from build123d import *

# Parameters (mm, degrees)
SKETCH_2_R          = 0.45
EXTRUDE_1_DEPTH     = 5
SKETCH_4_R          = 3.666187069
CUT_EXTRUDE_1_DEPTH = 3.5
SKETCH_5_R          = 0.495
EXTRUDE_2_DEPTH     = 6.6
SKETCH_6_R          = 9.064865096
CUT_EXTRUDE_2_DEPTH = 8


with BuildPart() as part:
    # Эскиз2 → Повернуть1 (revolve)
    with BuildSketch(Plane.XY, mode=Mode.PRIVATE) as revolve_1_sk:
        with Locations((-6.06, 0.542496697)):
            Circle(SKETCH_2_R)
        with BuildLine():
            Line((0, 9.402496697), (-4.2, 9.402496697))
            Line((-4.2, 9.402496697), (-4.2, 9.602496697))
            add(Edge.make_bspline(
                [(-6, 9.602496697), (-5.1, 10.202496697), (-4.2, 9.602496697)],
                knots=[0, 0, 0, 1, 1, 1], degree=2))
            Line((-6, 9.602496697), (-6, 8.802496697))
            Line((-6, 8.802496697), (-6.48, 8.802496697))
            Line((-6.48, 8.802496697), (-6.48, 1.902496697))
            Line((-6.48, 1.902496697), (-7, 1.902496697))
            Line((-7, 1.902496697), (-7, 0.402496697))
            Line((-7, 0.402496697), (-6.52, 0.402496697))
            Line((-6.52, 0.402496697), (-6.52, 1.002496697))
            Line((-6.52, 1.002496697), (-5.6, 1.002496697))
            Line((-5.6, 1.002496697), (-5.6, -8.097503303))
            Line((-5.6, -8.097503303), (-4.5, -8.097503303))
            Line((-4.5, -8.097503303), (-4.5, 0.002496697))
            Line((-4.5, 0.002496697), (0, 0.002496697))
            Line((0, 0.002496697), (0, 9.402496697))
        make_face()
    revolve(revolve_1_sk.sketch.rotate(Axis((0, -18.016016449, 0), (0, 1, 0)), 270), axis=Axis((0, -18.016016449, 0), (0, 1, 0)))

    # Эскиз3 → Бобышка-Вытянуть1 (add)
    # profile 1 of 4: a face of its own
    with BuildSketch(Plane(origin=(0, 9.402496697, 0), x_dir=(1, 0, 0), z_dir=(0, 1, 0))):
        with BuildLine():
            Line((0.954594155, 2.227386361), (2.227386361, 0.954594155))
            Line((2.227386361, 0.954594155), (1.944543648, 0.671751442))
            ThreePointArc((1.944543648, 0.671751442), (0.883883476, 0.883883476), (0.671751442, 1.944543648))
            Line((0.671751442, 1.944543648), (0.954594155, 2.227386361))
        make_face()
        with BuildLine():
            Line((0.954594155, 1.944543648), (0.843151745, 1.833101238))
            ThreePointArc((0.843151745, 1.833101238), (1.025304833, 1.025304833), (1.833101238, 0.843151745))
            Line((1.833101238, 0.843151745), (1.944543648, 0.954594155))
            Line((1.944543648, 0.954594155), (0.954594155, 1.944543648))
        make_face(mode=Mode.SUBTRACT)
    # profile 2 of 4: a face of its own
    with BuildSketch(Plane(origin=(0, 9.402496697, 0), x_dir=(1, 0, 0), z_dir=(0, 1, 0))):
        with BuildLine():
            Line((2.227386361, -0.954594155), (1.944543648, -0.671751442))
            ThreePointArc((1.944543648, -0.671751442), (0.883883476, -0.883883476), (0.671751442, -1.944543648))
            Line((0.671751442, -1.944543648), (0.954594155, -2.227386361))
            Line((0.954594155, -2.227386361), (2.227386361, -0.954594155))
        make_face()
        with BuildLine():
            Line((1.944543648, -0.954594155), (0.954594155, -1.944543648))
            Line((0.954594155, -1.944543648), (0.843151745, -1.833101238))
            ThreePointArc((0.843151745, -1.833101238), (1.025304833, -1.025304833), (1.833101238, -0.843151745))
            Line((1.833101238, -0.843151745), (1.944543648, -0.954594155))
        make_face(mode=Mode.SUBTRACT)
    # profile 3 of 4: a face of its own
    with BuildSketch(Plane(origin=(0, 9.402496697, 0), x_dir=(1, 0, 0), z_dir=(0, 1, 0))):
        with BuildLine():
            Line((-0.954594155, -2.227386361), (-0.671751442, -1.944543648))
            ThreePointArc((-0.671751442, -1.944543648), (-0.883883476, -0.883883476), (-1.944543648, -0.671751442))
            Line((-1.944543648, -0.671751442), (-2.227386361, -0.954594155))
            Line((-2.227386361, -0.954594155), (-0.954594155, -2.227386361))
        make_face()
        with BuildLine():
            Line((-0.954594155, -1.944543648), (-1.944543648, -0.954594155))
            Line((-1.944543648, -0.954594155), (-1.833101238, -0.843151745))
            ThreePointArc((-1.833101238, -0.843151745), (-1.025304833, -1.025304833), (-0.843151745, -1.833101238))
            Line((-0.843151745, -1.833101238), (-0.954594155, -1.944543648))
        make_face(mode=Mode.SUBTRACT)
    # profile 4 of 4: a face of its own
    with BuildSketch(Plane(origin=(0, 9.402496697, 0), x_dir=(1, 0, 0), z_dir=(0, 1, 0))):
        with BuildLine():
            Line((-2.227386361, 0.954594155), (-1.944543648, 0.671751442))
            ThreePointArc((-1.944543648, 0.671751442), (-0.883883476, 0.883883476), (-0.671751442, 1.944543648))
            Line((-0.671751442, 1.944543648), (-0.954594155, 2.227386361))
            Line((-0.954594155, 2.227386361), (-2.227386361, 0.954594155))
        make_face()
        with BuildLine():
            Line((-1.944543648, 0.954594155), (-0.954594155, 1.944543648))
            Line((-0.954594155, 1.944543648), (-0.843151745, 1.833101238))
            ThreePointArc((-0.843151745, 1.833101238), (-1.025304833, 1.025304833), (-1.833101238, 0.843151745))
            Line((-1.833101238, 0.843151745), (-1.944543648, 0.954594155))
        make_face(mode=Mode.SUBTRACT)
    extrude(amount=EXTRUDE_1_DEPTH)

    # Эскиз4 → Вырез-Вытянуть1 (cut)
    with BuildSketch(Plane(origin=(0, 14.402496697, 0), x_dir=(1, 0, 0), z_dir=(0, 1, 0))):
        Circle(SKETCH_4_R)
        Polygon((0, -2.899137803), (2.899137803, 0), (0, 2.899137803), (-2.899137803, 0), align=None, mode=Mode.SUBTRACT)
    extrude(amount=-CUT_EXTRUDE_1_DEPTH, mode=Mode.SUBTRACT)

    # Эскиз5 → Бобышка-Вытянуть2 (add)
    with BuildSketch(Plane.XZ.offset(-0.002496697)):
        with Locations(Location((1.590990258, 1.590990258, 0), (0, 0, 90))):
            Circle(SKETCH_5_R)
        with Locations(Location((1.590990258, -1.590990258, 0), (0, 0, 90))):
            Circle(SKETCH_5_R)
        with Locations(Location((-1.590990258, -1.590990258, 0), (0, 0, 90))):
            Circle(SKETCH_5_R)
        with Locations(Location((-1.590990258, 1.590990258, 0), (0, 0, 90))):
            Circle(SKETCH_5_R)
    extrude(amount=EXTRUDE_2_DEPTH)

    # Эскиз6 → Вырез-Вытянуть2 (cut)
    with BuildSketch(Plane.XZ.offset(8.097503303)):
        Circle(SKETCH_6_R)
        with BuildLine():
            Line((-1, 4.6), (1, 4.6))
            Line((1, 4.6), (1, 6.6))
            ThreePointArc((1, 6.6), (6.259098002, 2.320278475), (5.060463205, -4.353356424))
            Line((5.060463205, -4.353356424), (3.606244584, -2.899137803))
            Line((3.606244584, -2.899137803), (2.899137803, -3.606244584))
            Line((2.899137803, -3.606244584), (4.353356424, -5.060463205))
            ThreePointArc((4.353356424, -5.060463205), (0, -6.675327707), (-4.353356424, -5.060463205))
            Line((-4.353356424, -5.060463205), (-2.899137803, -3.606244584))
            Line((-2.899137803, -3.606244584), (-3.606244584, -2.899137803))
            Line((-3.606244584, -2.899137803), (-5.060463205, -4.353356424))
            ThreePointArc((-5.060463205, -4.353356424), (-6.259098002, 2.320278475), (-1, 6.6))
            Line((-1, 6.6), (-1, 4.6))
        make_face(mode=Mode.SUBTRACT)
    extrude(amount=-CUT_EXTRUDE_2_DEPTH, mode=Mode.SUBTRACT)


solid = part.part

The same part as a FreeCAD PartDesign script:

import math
import FreeCAD as App
import Part
import Sketcher

V = App.Vector
Q = App.Units.Quantity

doc = App.newDocument("Part")
body = doc.addObject("PartDesign::Body", "Body")
body.AllowCompound = True

sketch1 = body.newObject("Sketcher::SketchObject", "Sketch")
sketch1.AttachmentSupport = (doc.getObject("XY_Plane"), [""])
sketch1.MapMode = "FlatFace"
sketch1.addGeometry([
    Part.Circle(V(-6.06, 0.542497, 0), V(0, 0, 1), 0.45),
    Part.LineSegment(V(0, 9.402497, 0), V(-4.2, 9.402497, 0)),
    Part.LineSegment(V(-4.2, 9.402497, 0), V(-4.2, 9.602497, 0)),
    Part.BSplineCurve([V(-6, 9.602497, 0), V(-5.1, 10.202497, 0), V(-4.2, 9.602497, 0)], [3, 3], [0, 1], False, 2, [1, 1, 1], False),
    Part.LineSegment(V(-6, 9.602497, 0), V(-6, 8.802497, 0)),
    Part.LineSegment(V(-6, 8.802497, 0), V(-6.48, 8.802497, 0)),
    Part.LineSegment(V(-6.48, 8.802497, 0), V(-6.48, 1.902497, 0)),
    Part.LineSegment(V(-6.48, 1.902497, 0), V(-7, 1.902497, 0)),
    Part.LineSegment(V(-7, 1.902497, 0), V(-7, 0.402497, 0)),
    Part.LineSegment(V(-7, 0.402497, 0), V(-6.52, 0.402497, 0)),
    Part.LineSegment(V(-6.52, 0.402497, 0), V(-6.52, 1.002497, 0)),
    Part.LineSegment(V(-6.52, 1.002497, 0), V(-5.6, 1.002497, 0)),
    Part.LineSegment(V(-5.6, 1.002497, 0), V(-5.6, -8.097503, 0)),
    Part.LineSegment(V(-5.6, -8.097503, 0), V(-4.5, -8.097503, 0)),
    Part.LineSegment(V(-4.5, -8.097503, 0), V(-4.5, 0.002497, 0)),
    Part.LineSegment(V(-4.5, 0.002497, 0), V(0, 0.002497, 0)),
    Part.LineSegment(V(0, 0.002497, 0), V(0, 9.402497, 0)),
], False)
sketch1.addConstraint([
    Sketcher.Constraint("Block", 3),
    Sketcher.Constraint("Coincident", 1, 2, 2, 1),
    Sketcher.Constraint("Coincident", 2, 2, 3, 2),
    Sketcher.Constraint("Coincident", 3, 1, 4, 1),
    Sketcher.Constraint("Coincident", 4, 2, 5, 1),
    Sketcher.Constraint("Coincident", 5, 2, 6, 1),
    Sketcher.Constraint("Coincident", 6, 2, 7, 1),
    Sketcher.Constraint("Coincident", 7, 2, 8, 1),
    Sketcher.Constraint("Coincident", 8, 2, 9, 1),
    Sketcher.Constraint("Coincident", 9, 2, 10, 1),
    Sketcher.Constraint("Coincident", 10, 2, 11, 1),
    Sketcher.Constraint("Coincident", 11, 2, 12, 1),
    Sketcher.Constraint("Coincident", 12, 2, 13, 1),
    Sketcher.Constraint("Coincident", 13, 2, 14, 1),
    Sketcher.Constraint("Coincident", 14, 2, 15, 1),
    Sketcher.Constraint("Coincident", 15, 2, 16, 1),
    Sketcher.Constraint("Coincident", 16, 2, 1, 1),
    Sketcher.Constraint("Horizontal", 1),
    Sketcher.Constraint("Vertical", 2),
    Sketcher.Constraint("Vertical", 4),
    Sketcher.Constraint("Horizontal", 5),
    Sketcher.Constraint("Vertical", 6),
    Sketcher.Constraint("Horizontal", 7),
    Sketcher.Constraint("Vertical", 8),
    Sketcher.Constraint("Horizontal", 9),
    Sketcher.Constraint("Vertical", 10),
    Sketcher.Constraint("Horizontal", 11),
    Sketcher.Constraint("Vertical", 12),
    Sketcher.Constraint("Horizontal", 13),
    Sketcher.Constraint("Vertical", 14),
    Sketcher.Constraint("Horizontal", 15),
    Sketcher.Constraint("Vertical", 16),
    Sketcher.Constraint("PointOnObject", 15, 2, -2),
    Sketcher.Constraint("Equal", 5, 9),
    Sketcher.Constraint("Diameter", 0, Q("0.9 mm")),
    Sketcher.Constraint("DistanceX", 13, 1, 13, 2, Q("1.1 mm")),
    Sketcher.Constraint("DistanceX", 15, 1, 15, 2, Q("4.5 mm")),
    Sketcher.Constraint("DistanceY", 2, 1, 2, 2, Q("0.2 mm")),
    Sketcher.Constraint("DistanceY", 4, 2, 4, 1, Q("0.8 mm")),
    Sketcher.Constraint("DistanceY", 6, 2, 6, 1, Q("6.9 mm")),
    Sketcher.Constraint("DistanceY", 8, 2, 8, 1, Q("1.5 mm")),
    Sketcher.Constraint("DistanceY", 10, 1, 10, 2, Q("0.6 mm")),
    Sketcher.Constraint("DistanceY", 12, 2, 12, 1, Q("9.1 mm")),
    Sketcher.Constraint("DistanceY", 14, 1, 14, 2, Q("8.1 mm")),
    Sketcher.Constraint("DistanceX", 7, 2, -1, 1, Q("7 mm")),
    Sketcher.Constraint("DistanceX", 5, 2, 5, 1, Q("0.48 mm")),
    Sketcher.Constraint("DistanceX", 0, 3, -1, 1, Q("6.06 mm")),
    Sketcher.Constraint("DistanceY", 0, 3, 1, 2, Q("8.86 mm")),
])
revolution = body.newObject("PartDesign::Revolution", "Revolution")
revolution.Profile = sketch1
revolution.ReferenceAxis = (sketch1, ["V_Axis"])
revolution.Angle = 360

sketch2 = body.newObject("Sketcher::SketchObject", "Sketch001")
sketch2.AttachmentSupport = (doc.getObject("XZ_Plane"), [""])
sketch2.MapMode = "FlatFace"
sketch2.AttachmentOffset = App.Placement(V(0, 0, -9.402497), App.Rotation())
sketch2.addGeometry([
    Part.LineSegment(V(2.23, -0.95, 0), V(0.95, -2.23, 0)),
    Part.LineSegment(V(0.95, -2.23, 0), V(0.67, -1.94, 0)),
    Part.ArcOfCircle(Part.Circle(V(1.57, -1.57, 0), V(0, 0, 1), 0.97), math.radians(68), math.radians(202)),
    Part.LineSegment(V(1.94, -0.67, 0), V(2.23, -0.95, 0)),
    Part.LineSegment(V(0.95, -1.94, 0), V(1.94, -0.95, 0)),
    Part.LineSegment(V(1.94, -0.95, 0), V(1.83, -0.84, 0)),
    Part.ArcOfCircle(Part.Circle(V(1.57, -1.57, 0), V(0, 0, 1), 0.78), math.radians(70), math.radians(200)),
    Part.LineSegment(V(0.84, -1.83, 0), V(0.95, -1.94, 0)),
    Part.LineSegment(V(2.23, 0.95, 0), V(1.94, 0.67, 0)),
    Part.ArcOfCircle(Part.Circle(V(1.57, 1.57, 0), V(0, 0, 1), 0.97), math.radians(158), math.radians(292)),
    Part.LineSegment(V(0.67, 1.94, 0), V(0.95, 2.23, 0)),
    Part.LineSegment(V(0.95, 2.23, 0), V(2.23, 0.95, 0)),
    Part.LineSegment(V(1.83, 0.84, 0), V(1.94, 0.95, 0)),
    Part.LineSegment(V(1.94, 0.95, 0), V(0.95, 1.94, 0)),
    Part.LineSegment(V(0.95, 1.94, 0), V(0.84, 1.83, 0)),
    Part.ArcOfCircle(Part.Circle(V(1.57, 1.57, 0), V(0, 0, 1), 0.78), math.radians(160), math.radians(290)),
    Part.LineSegment(V(-0.95, 2.23, 0), V(-0.67, 1.94, 0)),
    Part.ArcOfCircle(Part.Circle(V(-1.57, 1.57, 0), V(0, 0, 1), 0.97), math.radians(-112), math.radians(22)),
    Part.LineSegment(V(-1.94, 0.67, 0), V(-2.23, 0.95, 0)),
    Part.LineSegment(V(-2.23, 0.95, 0), V(-0.95, 2.23, 0)),
    Part.LineSegment(V(-0.84, 1.83, 0), V(-0.95, 1.94, 0)),
    Part.LineSegment(V(-0.95, 1.94, 0), V(-1.94, 0.95, 0)),
    Part.LineSegment(V(-1.94, 0.95, 0), V(-1.83, 0.84, 0)),
    Part.ArcOfCircle(Part.Circle(V(-1.57, 1.57, 0), V(0, 0, 1), 0.78), math.radians(-110), math.radians(20)),
    Part.LineSegment(V(-2.23, -0.95, 0), V(-1.94, -0.67, 0)),
    Part.ArcOfCircle(Part.Circle(V(-1.57, -1.57, 0), V(0, 0, 1), 0.97), math.radians(-22), math.radians(112)),
    Part.LineSegment(V(-0.67, -1.94, 0), V(-0.95, -2.23, 0)),
    Part.LineSegment(V(-0.95, -2.23, 0), V(-2.23, -0.95, 0)),
    Part.LineSegment(V(-1.83, -0.84, 0), V(-1.94, -0.95, 0)),
    Part.LineSegment(V(-1.94, -0.95, 0), V(-0.95, -1.94, 0)),
    Part.LineSegment(V(-0.95, -1.94, 0), V(-0.84, -1.83, 0)),
    Part.ArcOfCircle(Part.Circle(V(-1.57, -1.57, 0), V(0, 0, 1), 0.78), math.radians(-20), math.radians(110)),
], False)
sketch2.addConstraint([
    Sketcher.Constraint("Coincident", 0, 2, 1, 1),
    Sketcher.Constraint("Coincident", 1, 2, 2, 2),
    Sketcher.Constraint("Coincident", 2, 1, 3, 1),
    Sketcher.Constraint("Coincident", 3, 2, 0, 1),
    Sketcher.Constraint("Coincident", 4, 2, 5, 1),
    Sketcher.Constraint("Coincident", 5, 2, 6, 1),
    Sketcher.Constraint("Coincident", 6, 2, 7, 1),
    Sketcher.Constraint("Coincident", 7, 2, 4, 1),
    Sketcher.Constraint("Coincident", 8, 2, 9, 2),
    Sketcher.Constraint("Coincident", 9, 1, 10, 1),
    Sketcher.Constraint("Coincident", 10, 2, 11, 1),
    Sketcher.Constraint("Coincident", 11, 2, 8, 1),
    Sketcher.Constraint("Coincident", 12, 2, 13, 1),
    Sketcher.Constraint("Coincident", 13, 2, 14, 1),
    Sketcher.Constraint("Coincident", 14, 2, 15, 1),
    Sketcher.Constraint("Coincident", 15, 2, 12, 1),
    Sketcher.Constraint("Coincident", 16, 2, 17, 2),
    Sketcher.Constraint("Coincident", 17, 1, 18, 1),
    Sketcher.Constraint("Coincident", 18, 2, 19, 1),
    Sketcher.Constraint("Coincident", 19, 2, 16, 1),
    Sketcher.Constraint("Coincident", 20, 2, 21, 1),
    Sketcher.Constraint("Coincident", 21, 2, 22, 1),
    Sketcher.Constraint("Coincident", 22, 2, 23, 1),
    Sketcher.Constraint("Coincident", 23, 2, 20, 1),
    Sketcher.Constraint("Coincident", 24, 2, 25, 2),
    Sketcher.Constraint("Coincident", 25, 1, 26, 1),
    Sketcher.Constraint("Coincident", 26, 2, 27, 1),
    Sketcher.Constraint("Coincident", 27, 2, 24, 1),
    Sketcher.Constraint("Coincident", 28, 2, 29, 1),
    Sketcher.Constraint("Coincident", 29, 2, 30, 1),
    Sketcher.Constraint("Coincident", 30, 2, 31, 1),
    Sketcher.Constraint("Coincident", 31, 2, 28, 1),
    Sketcher.Constraint("Coincident", 6, 3, 2, 3),
    Sketcher.Constraint("Coincident", 15, 3, 9, 3),
    Sketcher.Constraint("Coincident", 23, 3, 17, 3),
    Sketcher.Constraint("Coincident", 31, 3, 25, 3),
    Sketcher.Constraint("Equal", 2, 9),
    Sketcher.Constraint("Equal", 6, 15),
    Sketcher.Constraint("Equal", 9, 17),
    Sketcher.Constraint("Equal", 15, 23),
    Sketcher.Constraint("Equal", 17, 25),
    Sketcher.Constraint("Equal", 23, 31),
    Sketcher.Constraint("Symmetric", 2, 3, 17, 3, -1, 1),
    Sketcher.Constraint("Symmetric", 9, 3, 25, 3, -1, 1),
    Sketcher.Constraint("Symmetric", 3, 2, 18, 2, -1, 1),
    Sketcher.Constraint("Symmetric", 0, 2, 19, 2, -1, 1),
    Sketcher.Constraint("Symmetric", 7, 2, 20, 2, -1, 1),
    Sketcher.Constraint("Symmetric", 4, 2, 21, 2, -1, 1),
    Sketcher.Constraint("Symmetric", 10, 2, 26, 2, -1, 1),
    Sketcher.Constraint("Symmetric", 11, 2, 27, 2, -1, 1),
    Sketcher.Constraint("Symmetric", 12, 2, 28, 2, -1, 1),
    Sketcher.Constraint("Symmetric", 13, 2, 29, 2, -1, 1),
    Sketcher.Constraint("Symmetric", 9, 3, 17, 3, -2),
    Sketcher.Constraint("Symmetric", 11, 2, 18, 2, -2),
    Sketcher.Constraint("Symmetric", 10, 2, 19, 2, -2),
    Sketcher.Constraint("Symmetric", 13, 2, 20, 2, -2),
    Sketcher.Constraint("Symmetric", 12, 2, 21, 2, -2),
    Sketcher.Constraint("Perpendicular", 0, 1),
    Sketcher.Constraint("Parallel", 1, 3),
    Sketcher.Constraint("Perpendicular", 3, 4),
    Sketcher.Constraint("Perpendicular", 4, 5),
    Sketcher.Constraint("Parallel", 5, 7),
    Sketcher.Constraint("Perpendicular", 7, 8),
    Sketcher.Constraint("Parallel", 8, 10),
    Sketcher.Constraint("Perpendicular", 10, 11),
    Sketcher.Constraint("Perpendicular", 11, 12),
    Sketcher.Constraint("Perpendicular", 13, 14),
    Sketcher.Constraint("Perpendicular", 14, 16),
    Sketcher.Constraint("Parallel", 16, 18),
    Sketcher.Constraint("Perpendicular", 19, 20),
    Sketcher.Constraint("Perpendicular", 21, 22),
    Sketcher.Constraint("Perpendicular", 22, 24),
    Sketcher.Constraint("Parallel", 24, 26),
    Sketcher.Constraint("Perpendicular", 27, 28),
    Sketcher.Constraint("Perpendicular", 29, 30),
    Sketcher.Constraint("Horizontal", 3, 2, 4, 2),
    Sketcher.Constraint("Horizontal", 1, 2, 7, 2),
    Sketcher.Constraint("Vertical", 2, 1, 4, 2),
    Sketcher.Constraint("Vertical", 0, 2, 7, 2),
    Sketcher.Constraint("Radius", 2, Q("0.975 mm")),
    Sketcher.Constraint("Radius", 6, Q("0.775 mm")),
    Sketcher.Constraint("Distance", 0, Q("1.8 mm")),
    Sketcher.Constraint("Distance", 1, Q("0.4 mm")),
    Sketcher.Constraint("DistanceX", -1, 1, 5, 2, Q("1.833101 mm")),
    Sketcher.Constraint("DistanceY", 6, 2, -1, 1, Q("1.833101 mm")),
])
pad1 = body.newObject("PartDesign::Pad", "Pad")
pad1.Profile = sketch2
pad1.Length = 5
pad1.Reversed = True

sketch3 = body.newObject("Sketcher::SketchObject", "Sketch002")
sketch3.AttachmentSupport = (doc.getObject("XZ_Plane"), [""])
sketch3.MapMode = "FlatFace"
sketch3.AttachmentOffset = App.Placement(V(0, 0, -14.402497), App.Rotation())
sketch3.addGeometry([
    Part.Circle(V(0, 0, 0), V(0, 0, 1), 3.7),
    Part.LineSegment(V(2.9, 0, 0), V(0, 2.9, 0)),
    Part.LineSegment(V(0, 2.9, 0), V(-2.9, 0, 0)),
    Part.LineSegment(V(-2.9, 0, 0), V(0, -2.9, 0)),
    Part.LineSegment(V(0, -2.9, 0), V(2.9, 0, 0)),
], False)
sketch3.addConstraint([
    Sketcher.Constraint("Coincident", 1, 2, 2, 1),
    Sketcher.Constraint("Coincident", 2, 2, 3, 1),
    Sketcher.Constraint("Coincident", 3, 2, 4, 1),
    Sketcher.Constraint("Coincident", 4, 2, 1, 1),
    Sketcher.Constraint("Coincident", 0, 3, -1, 1),
    Sketcher.Constraint("Symmetric", 1, 2, 3, 2, -1, 1),
    Sketcher.Constraint("Symmetric", 2, 2, 4, 2, -1, 1),
    Sketcher.Constraint("PointOnObject", 1, 2, -2),
    Sketcher.Constraint("PointOnObject", 2, 2, -1),
    Sketcher.Constraint("Perpendicular", 1, 2),
    Sketcher.Constraint("Distance", 1, Q("4.1 mm")),
    Sketcher.Constraint("Diameter", 0, Q("7.332374 mm")),
])
pocket1 = body.newObject("PartDesign::Pocket", "Pocket")
pocket1.Profile = sketch3
pocket1.Length = 3.5
pocket1.Reversed = True

sketch4 = body.newObject("Sketcher::SketchObject", "Sketch003")
sketch4.AttachmentSupport = (doc.getObject("XZ_Plane"), [""])
sketch4.MapMode = "FlatFace"
sketch4.AttachmentOffset = App.Placement(V(0, 0, -0.002497), App.Rotation())
sketch4.addGeometry([
    Part.Circle(V(1.59, 1.59, 0), V(0, 0, 1), 0.49),
    Part.Circle(V(1.59, -1.59, 0), V(0, 0, 1), 0.49),
    Part.Circle(V(-1.59, -1.59, 0), V(0, 0, 1), 0.49),
    Part.Circle(V(-1.59, 1.59, 0), V(0, 0, 1), 0.49),
], False)
sketch4.addConstraint([
    Sketcher.Constraint("Equal", 0, 1),
    Sketcher.Constraint("Equal", 1, 2),
    Sketcher.Constraint("Equal", 2, 3),
    Sketcher.Constraint("Symmetric", 0, 3, 2, 3, -1, 1),
    Sketcher.Constraint("Symmetric", 1, 3, 3, 3, -1, 1),
    Sketcher.Constraint("Symmetric", 1, 3, 2, 3, -2),
    Sketcher.Constraint("Diameter", 0, Q("0.99 mm")),
    Sketcher.Constraint("DistanceX", -1, 1, 0, 3, Q("1.59099 mm")),
    Sketcher.Constraint("DistanceY", -1, 1, 0, 3, Q("1.59099 mm")),
])
pad2 = body.newObject("PartDesign::Pad", "Pad001")
pad2.Profile = sketch4
pad2.Length = 6.6

sketch5 = body.newObject("Sketcher::SketchObject", "Sketch004")
sketch5.AttachmentSupport = (doc.getObject("XZ_Plane"), [""])
sketch5.MapMode = "FlatFace"
sketch5.AttachmentOffset = App.Placement(V(0, 0, 8.097503), App.Rotation())
sketch5.addGeometry([
    Part.Circle(V(0, 0, 0), V(0, 0, 1), 9.1),
    Part.LineSegment(V(-1, 6.6, 0), V(-1, 4.6, 0)),
    Part.LineSegment(V(-1, 4.6, 0), V(1, 4.6, 0)),
    Part.LineSegment(V(1, 4.6, 0), V(1, 6.6, 0)),
    Part.ArcOfCircle(Part.Circle(V(0, 0, 0), V(0, 0, 1), 6.7), math.radians(-41), math.radians(81)),
    Part.LineSegment(V(5.1, -4.4, 0), V(3.6, -2.9, 0)),
    Part.LineSegment(V(3.6, -2.9, 0), V(2.9, -3.6, 0)),
    Part.LineSegment(V(2.9, -3.6, 0), V(4.4, -5.1, 0)),
    Part.ArcOfCircle(Part.Circle(V(0, 0, 0), V(0, 0, 1), 6.7), math.radians(-131), math.radians(-49)),
    Part.LineSegment(V(-4.4, -5.1, 0), V(-2.9, -3.6, 0)),
    Part.LineSegment(V(-2.9, -3.6, 0), V(-3.6, -2.9, 0)),
    Part.LineSegment(V(-3.6, -2.9, 0), V(-5.1, -4.4, 0)),
    Part.ArcOfCircle(Part.Circle(V(0, 0, 0), V(0, 0, 1), 6.7), math.radians(99), math.radians(221)),
], False)
sketch5.addConstraint([
    Sketcher.Constraint("Coincident", 1, 2, 2, 1),
    Sketcher.Constraint("Coincident", 2, 2, 3, 1),
    Sketcher.Constraint("Coincident", 3, 2, 4, 2),
    Sketcher.Constraint("Coincident", 4, 1, 5, 1),
    Sketcher.Constraint("Coincident", 5, 2, 6, 1),
    Sketcher.Constraint("Coincident", 6, 2, 7, 1),
    Sketcher.Constraint("Coincident", 7, 2, 8, 2),
    Sketcher.Constraint("Coincident", 8, 1, 9, 1),
    Sketcher.Constraint("Coincident", 9, 2, 10, 1),
    Sketcher.Constraint("Coincident", 10, 2, 11, 1),
    Sketcher.Constraint("Coincident", 11, 2, 12, 2),
    Sketcher.Constraint("Coincident", 12, 1, 1, 1),
    Sketcher.Constraint("Vertical", 1),
    Sketcher.Constraint("Horizontal", 2),
    Sketcher.Constraint("Vertical", 3),
    Sketcher.Constraint("Coincident", 0, 3, -1, 1),
    Sketcher.Constraint("Coincident", 4, 3, -1, 1),
    Sketcher.Constraint("Coincident", 8, 3, -1, 1),
    Sketcher.Constraint("Coincident", 12, 3, -1, 1),
    Sketcher.Constraint("Equal", 4, 8),
    Sketcher.Constraint("Equal", 8, 12),
    Sketcher.Constraint("Symmetric", 6, 2, 9, 2, -2),
    Sketcher.Constraint("Symmetric", 5, 2, 10, 2, -2),
    Sketcher.Constraint("Perpendicular", 5, 6),
    Sketcher.Constraint("Perpendicular", 6, 7),
    Sketcher.Constraint("Perpendicular", 7, 9),
    Sketcher.Constraint("Perpendicular", 9, 10),
    Sketcher.Constraint("Perpendicular", 10, 11),
    Sketcher.Constraint("Horizontal", 3, 2, 12, 1),
    Sketcher.Constraint("Equal", 2, 1),
    Sketcher.Constraint("Equal", 5, 7),
    Sketcher.Constraint("DistanceX", 2, 1, 2, 2, Q("2 mm")),
    Sketcher.Constraint("Distance", 6, Q("1 mm")),
    Sketcher.Constraint("DistanceY", -1, 1, 1, 2, Q("4.6 mm")),
    Sketcher.Constraint("Diameter", 0, Q("18.12973 mm")),
    Sketcher.Constraint("DistanceX", 5, 2, 4, 1, Q("1.454219 mm")),
])
pocket2 = body.newObject("PartDesign::Pocket", "Pocket001")
pocket2.Profile = sketch5
pocket2.Length = 8

doc.recompute()
